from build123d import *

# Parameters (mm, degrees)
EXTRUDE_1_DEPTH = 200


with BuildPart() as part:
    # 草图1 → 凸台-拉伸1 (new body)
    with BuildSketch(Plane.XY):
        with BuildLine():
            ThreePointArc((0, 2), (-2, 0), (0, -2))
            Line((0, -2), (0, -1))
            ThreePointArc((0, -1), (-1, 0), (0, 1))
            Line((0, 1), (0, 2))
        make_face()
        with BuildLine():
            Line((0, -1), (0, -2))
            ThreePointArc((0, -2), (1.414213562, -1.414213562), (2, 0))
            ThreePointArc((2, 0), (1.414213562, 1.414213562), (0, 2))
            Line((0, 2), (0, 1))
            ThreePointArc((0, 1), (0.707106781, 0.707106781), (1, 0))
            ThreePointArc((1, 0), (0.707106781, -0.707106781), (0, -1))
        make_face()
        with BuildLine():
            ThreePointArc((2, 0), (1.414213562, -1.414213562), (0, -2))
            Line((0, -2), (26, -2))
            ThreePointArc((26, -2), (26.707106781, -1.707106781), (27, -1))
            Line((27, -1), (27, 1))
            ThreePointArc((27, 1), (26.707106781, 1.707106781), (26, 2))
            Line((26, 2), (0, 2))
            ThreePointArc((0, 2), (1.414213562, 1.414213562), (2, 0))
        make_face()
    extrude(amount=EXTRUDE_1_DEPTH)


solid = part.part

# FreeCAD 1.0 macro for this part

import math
import FreeCAD as App
import Part
import Sketcher

V = App.Vector

doc = App.newDocument("Part")
params = doc.addObject("Spreadsheet::Sheet", "Params")
for row, (alias, value) in enumerate([
    ("sketch1_radius", "2 mm"),
    ("sketch1_width", "26 mm"),
    ("pad1_length", "200 mm"),
], start=1):
    params.set(f"A{row}", alias)
    params.set(f"B{row}", "=" + value)
    params.setAlias(f"B{row}", alias)

body = doc.addObject("PartDesign::Body", "Body")

# Sketch on XY plane
sketch1 = body.newObject("Sketcher::SketchObject", "Sketch")
sketch1.AttachmentSupport = (doc.getObject("XY_Plane"), [""])
sketch1.MapMode = "FlatFace"
sketch1.addGeometry([
    Part.ArcOfCircle(Part.Circle(V(0, 0, 0), V(0, 0, 1), 2), math.radians(90), math.radians(270)),  # 0
    Part.LineSegment(V(0, -2, 0), V(26, -2, 0)),  # 1
    Part.ArcOfCircle(Part.Circle(V(26, -1, 0), V(0, 0, 1), 1), math.radians(-90), math.radians(0)),  # 2
    Part.LineSegment(V(27, -1, 0), V(27, 1, 0)),  # 3
    Part.ArcOfCircle(Part.Circle(V(26, 1, 0), V(0, 0, 1), 1), math.radians(0), math.radians(90)),  # 4
    Part.LineSegment(V(26, 2, 0), V(0, 2, 0)),  # 5
    Part.ArcOfCircle(Part.Circle(V(0, 0, 0), V(0, 0, 1), 1), math.radians(90), math.radians(270)),  # 6
    Part.ArcOfCircle(Part.Circle(V(0, 0, 0), V(0, 0, 1), 1), math.radians(0), math.radians(90)),  # 7
    Part.ArcOfCircle(Part.Circle(V(0, 0, 0), V(0, 0, 1), 1), math.radians(-90), math.radians(0)),  # 8
], False)
sketch1.addConstraint([
    Sketcher.Constraint("Tangent", 0, 2, 1, 1),
    Sketcher.Constraint("Tangent", 1, 2, 2, 1),
    Sketcher.Constraint("Tangent", 2, 2, 3, 1),
    Sketcher.Constraint("Tangent", 3, 2, 4, 1),
    Sketcher.Constraint("Tangent", 4, 2, 5, 1),
    Sketcher.Constraint("Tangent", 5, 2, 0, 1),
    Sketcher.Constraint("Tangent", 6, 1, 7, 2),
    Sketcher.Constraint("Tangent", 7, 1, 8, 2),
    Sketcher.Constraint("Tangent", 8, 1, 6, 2),
    Sketcher.Constraint("Horizontal", 1),
    Sketcher.Constraint("Vertical", 3),
    Sketcher.Constraint("Horizontal", 5),
    Sketcher.Constraint("Coincident", 0, 3, -1, 1),
    Sketcher.Constraint("Coincident", 6, 3, -1, 1),
    Sketcher.Constraint("Equal", 2, 4),
    Sketcher.Constraint("Equal", 4, 6),
    Sketcher.Constraint("PointOnObject", 6, 1, -2),
    Sketcher.Constraint("PointOnObject", 7, 1, -1),
    Sketcher.Constraint("PointOnObject", 8, 1, -2),
    Sketcher.Constraint("Horizontal", 3, 2, 6, 1),
    Sketcher.Constraint("Radius", 0, 2.0),
    Sketcher.Constraint("DistanceX", 1, 1, 1, 2, 26.0),
])
sketch1.setExpression("Constraints[20]", "Params.sketch1_radius")
sketch1.setExpression("Constraints[21]", "Params.sketch1_width")
pad1 = body.newObject("PartDesign::Pad", "Pad")
pad1.Profile = sketch1
pad1.setExpression("Length", "Params.pad1_length")

doc.recompute()
